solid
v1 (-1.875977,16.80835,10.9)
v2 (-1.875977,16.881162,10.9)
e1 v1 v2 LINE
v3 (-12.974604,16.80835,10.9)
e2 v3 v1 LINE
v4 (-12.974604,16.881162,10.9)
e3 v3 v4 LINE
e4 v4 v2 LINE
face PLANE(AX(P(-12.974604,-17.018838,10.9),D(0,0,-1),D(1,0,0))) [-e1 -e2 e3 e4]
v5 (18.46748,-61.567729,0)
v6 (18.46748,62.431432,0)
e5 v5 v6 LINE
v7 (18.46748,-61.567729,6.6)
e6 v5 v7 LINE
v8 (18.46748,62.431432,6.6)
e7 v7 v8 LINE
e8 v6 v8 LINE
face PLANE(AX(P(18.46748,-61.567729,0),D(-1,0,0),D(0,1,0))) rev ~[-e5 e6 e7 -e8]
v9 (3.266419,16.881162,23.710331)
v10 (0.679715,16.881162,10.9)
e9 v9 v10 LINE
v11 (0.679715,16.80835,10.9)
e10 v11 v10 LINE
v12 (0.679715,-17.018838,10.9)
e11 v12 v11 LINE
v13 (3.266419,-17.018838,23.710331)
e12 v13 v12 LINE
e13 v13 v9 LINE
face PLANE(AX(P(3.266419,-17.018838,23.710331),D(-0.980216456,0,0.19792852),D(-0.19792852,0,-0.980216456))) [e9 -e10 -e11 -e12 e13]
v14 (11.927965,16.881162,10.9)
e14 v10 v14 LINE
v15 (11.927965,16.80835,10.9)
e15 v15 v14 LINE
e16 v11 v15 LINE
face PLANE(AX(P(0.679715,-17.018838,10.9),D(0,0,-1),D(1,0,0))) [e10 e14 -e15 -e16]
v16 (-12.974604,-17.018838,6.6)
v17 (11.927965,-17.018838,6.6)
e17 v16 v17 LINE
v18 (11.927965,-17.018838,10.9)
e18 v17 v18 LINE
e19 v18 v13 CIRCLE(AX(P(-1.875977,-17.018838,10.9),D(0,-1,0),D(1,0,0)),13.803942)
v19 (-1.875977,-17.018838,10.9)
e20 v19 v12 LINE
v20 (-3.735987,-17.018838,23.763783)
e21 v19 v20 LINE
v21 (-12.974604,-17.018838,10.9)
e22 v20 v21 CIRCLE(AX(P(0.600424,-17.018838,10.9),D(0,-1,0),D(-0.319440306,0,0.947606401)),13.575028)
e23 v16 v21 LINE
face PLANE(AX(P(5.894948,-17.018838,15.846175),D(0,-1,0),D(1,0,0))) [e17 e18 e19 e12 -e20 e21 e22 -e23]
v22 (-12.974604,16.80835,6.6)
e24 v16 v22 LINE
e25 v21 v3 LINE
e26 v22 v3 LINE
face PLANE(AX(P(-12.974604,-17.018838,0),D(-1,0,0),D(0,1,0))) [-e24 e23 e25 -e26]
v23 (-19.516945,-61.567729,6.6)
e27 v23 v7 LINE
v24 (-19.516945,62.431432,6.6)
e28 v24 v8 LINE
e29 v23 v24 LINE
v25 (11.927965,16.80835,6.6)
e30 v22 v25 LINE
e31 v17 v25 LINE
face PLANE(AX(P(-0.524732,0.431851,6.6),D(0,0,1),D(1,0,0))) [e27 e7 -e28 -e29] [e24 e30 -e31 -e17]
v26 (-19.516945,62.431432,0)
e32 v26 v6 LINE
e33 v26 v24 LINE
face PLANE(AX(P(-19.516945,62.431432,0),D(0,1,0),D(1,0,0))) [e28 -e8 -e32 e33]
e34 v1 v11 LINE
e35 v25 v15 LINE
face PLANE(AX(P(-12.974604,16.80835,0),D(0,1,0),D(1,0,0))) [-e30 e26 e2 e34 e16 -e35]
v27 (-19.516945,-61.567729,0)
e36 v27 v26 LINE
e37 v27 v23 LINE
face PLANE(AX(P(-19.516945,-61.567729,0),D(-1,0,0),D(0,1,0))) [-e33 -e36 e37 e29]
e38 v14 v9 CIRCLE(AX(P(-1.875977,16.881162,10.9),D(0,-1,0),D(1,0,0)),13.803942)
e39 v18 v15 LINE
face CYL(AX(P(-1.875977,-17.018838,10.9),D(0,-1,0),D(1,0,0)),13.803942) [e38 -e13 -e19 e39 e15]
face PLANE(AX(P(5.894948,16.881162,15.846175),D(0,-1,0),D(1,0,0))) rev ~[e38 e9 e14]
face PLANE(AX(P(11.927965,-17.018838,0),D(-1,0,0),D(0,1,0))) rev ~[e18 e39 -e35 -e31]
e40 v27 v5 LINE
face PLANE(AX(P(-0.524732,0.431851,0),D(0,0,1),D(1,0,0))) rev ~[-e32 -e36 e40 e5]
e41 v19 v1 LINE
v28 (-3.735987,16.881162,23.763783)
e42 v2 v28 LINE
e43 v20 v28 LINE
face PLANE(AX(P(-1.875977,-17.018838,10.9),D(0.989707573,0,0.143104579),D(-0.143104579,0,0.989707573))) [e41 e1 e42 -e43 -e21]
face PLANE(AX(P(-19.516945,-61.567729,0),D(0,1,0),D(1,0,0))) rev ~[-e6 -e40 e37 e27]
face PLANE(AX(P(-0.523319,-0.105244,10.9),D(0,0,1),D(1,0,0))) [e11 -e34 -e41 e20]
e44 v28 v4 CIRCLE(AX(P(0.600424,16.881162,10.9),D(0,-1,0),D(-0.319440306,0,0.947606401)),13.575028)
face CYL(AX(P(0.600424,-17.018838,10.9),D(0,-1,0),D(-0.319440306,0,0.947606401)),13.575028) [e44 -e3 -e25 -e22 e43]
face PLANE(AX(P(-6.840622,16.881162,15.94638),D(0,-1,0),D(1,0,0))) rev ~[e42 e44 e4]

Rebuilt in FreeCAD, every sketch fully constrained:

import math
import FreeCAD as App
import Part
import Sketcher

V = App.Vector

doc = App.newDocument("Part")
body = doc.addObject("PartDesign::Body", "Body")

# Sketch on XY plane
sketch1 = doc.addObject("Sketcher::SketchObject", "Sketch")
body.addObject(sketch1)
sketch1.AttachmentSupport = (doc.XY_Plane, [""])
sketch1.MapMode = "FlatFace"
sketch1.addGeometry(Part.LineSegment(V(-20, 62, 0), V(-20, -62, 0)), False)
sketch1.addGeometry(Part.LineSegment(V(-20, -62, 0), V(18, -62, 0)), False)
sketch1.addGeometry(Part.LineSegment(V(18, -62, 0), V(18, 62, 0)), False)
sketch1.addGeometry(Part.LineSegment(V(18, 62, 0), V(-20, 62, 0)), False)
sketch1.addGeometry(Part.LineSegment(V(12, -17, 0), V(-13, -17, 0)), False)
sketch1.addGeometry(Part.LineSegment(V(-13, -17, 0), V(-13, 17, 0)), False)
sketch1.addGeometry(Part.LineSegment(V(-13, 17, 0), V(12, 17, 0)), False)
sketch1.addGeometry(Part.LineSegment(V(12, 17, 0), V(12, -17, 0)), False)
sketch1.addConstraint(Sketcher.Constraint("Coincident", 0, 2, 1, 1))
sketch1.addConstraint(Sketcher.Constraint("Coincident", 1, 2, 2, 1))
sketch1.addConstraint(Sketcher.Constraint("Coincident", 2, 2, 3, 1))
sketch1.addConstraint(Sketcher.Constraint("Coincident", 3, 2, 0, 1))
sketch1.addConstraint(Sketcher.Constraint("Coincident", 4, 2, 5, 1))
sketch1.addConstraint(Sketcher.Constraint("Coincident", 5, 2, 6, 1))
sketch1.addConstraint(Sketcher.Constraint("Coincident", 6, 2, 7, 1))
sketch1.addConstraint(Sketcher.Constraint("Coincident", 7, 2, 4, 1))
sketch1.addConstraint(Sketcher.Constraint("Vertical", 0))
sketch1.addConstraint(Sketcher.Constraint("Horizontal", 1))
sketch1.addConstraint(Sketcher.Constraint("Vertical", 2))
sketch1.addConstraint(Sketcher.Constraint("Horizontal", 3))
sketch1.addConstraint(Sketcher.Constraint("Horizontal", 4))
sketch1.addConstraint(Sketcher.Constraint("Vertical", 5))
sketch1.addConstraint(Sketcher.Constraint("Horizontal", 6))
sketch1.addConstraint(Sketcher.Constraint("Vertical", 7))
sketch1.addConstraint(Sketcher.Constraint("DistanceX", 4, 2, 4, 1, 24.902569))
sketch1.addConstraint(Sketcher.Constraint("DistanceY", 0, 2, 0, 1, 123.999162))
sketch1.addConstraint(Sketcher.Constraint("DistanceX", 1, 1, 1, 2, 37.984425))
sketch1.addConstraint(Sketcher.Constraint("DistanceY", 5, 1, 5, 2, 33.827187))
sketch1.addConstraint(Sketcher.Constraint("DistanceY", 0, 2, -1, 1, 61.567729))
sketch1.addConstraint(Sketcher.Constraint("DistanceX", -1, 1, 1, 2, 18.46748))
sketch1.addConstraint(Sketcher.Constraint("DistanceY", -1, 1, 5, 2, 16.80835))
sketch1.addConstraint(Sketcher.Constraint("DistanceX", 0, 2, 4, 2, 6.542341))
pad1 = doc.addObject("PartDesign::Pad", "Pad")
body.addObject(pad1)
pad1.Profile = sketch1
pad1.Length = 6.6

# Sketch on XY plane
sketch2 = doc.addObject("Sketcher::SketchObject", "Sketch001")
body.addObject(sketch2)
sketch2.AttachmentSupport = (doc.XY_Plane, [""])
sketch2.MapMode = "FlatFace"
sketch2.addGeometry(Part.LineSegment(V(-13, 17, 0), V(-13, -17, 0)), False)
sketch2.addGeometry(Part.LineSegment(V(-13, -17, 0), V(12, -17, 0)), False)
sketch2.addGeometry(Part.LineSegment(V(12, -17, 0), V(12, 17, 0)), False)
sketch2.addGeometry(Part.LineSegment(V(12, 17, 0), V(-13, 17, 0)), False)
sketch2.addConstraint(Sketcher.Constraint("Coincident", 0, 2, 1, 1))
sketch2.addConstraint(Sketcher.Constraint("Coincident", 1, 2, 2, 1))
sketch2.addConstraint(Sketcher.Constraint("Coincident", 2, 2, 3, 1))
sketch2.addConstraint(Sketcher.Constraint("Coincident", 3, 2, 0, 1))
sketch2.addConstraint(Sketcher.Constraint("Vertical", 0))
sketch2.addConstraint(Sketcher.Constraint("Horizontal", 1))
sketch2.addConstraint(Sketcher.Constraint("Vertical", 2))
sketch2.addConstraint(Sketcher.Constraint("Horizontal", 3))
sketch2.addConstraint(Sketcher.Constraint("DistanceX", 1, 1, 1, 2, 24.902569))
sketch2.addConstraint(Sketcher.Constraint("DistanceY", 0, 2, 0, 1, 33.827187))
sketch2.addConstraint(Sketcher.Constraint("DistanceY", -1, 1, 2, 2, 16.80835))
sketch2.addConstraint(Sketcher.Constraint("DistanceX", 0, 2, -1, 1, 12.974604))
pad2 = doc.addObject("PartDesign::Pad", "Pad001")
body.addObject(pad2)
pad2.Profile = sketch2
pad2.Length = 10.9

# Sketch on XZ plane
sketch3 = doc.addObject("Sketcher::SketchObject", "Sketch002")
body.addObject(sketch3)
sketch3.AttachmentSupport = (doc.XZ_Plane, [""])
sketch3.MapMode = "FlatFace"
sketch3.AttachmentOffset = App.Placement(V(0, 0, 17.018838), App.Rotation())
sketch3.addGeometry(Part.LineSegment(V(3, 24, 0), V(1, 11, 0)), False)
sketch3.addGeometry(Part.LineSegment(V(1, 11, 0), V(12, 11, 0)), False)
sketch3.addGeometry(Part.ArcOfCircle(Part.Circle(V(-2, 11, 0), V(0, 0, 1), 14), math.radians(0), math.radians(68)), False)
sketch3.addGeometry(Part.LineSegment(V(-2, 11, 0), V(-4, 24, 0)), False)
sketch3.addGeometry(Part.ArcOfCircle(Part.Circle(V(1, 11, 0), V(0, 0, 1), 14), math.radians(109), math.radians(180)), False)
sketch3.addGeometry(Part.LineSegment(V(-13, 11, 0), V(-2, 11, 0)), False)
sketch3.addConstraint(Sketcher.Constraint("Coincident", 0, 2, 1, 1))
sketch3.addConstraint(Sketcher.Constraint("Coincident", 1, 2, 2, 1))
sketch3.addConstraint(Sketcher.Constraint("Coincident", 2, 2, 0, 1))
sketch3.addConstraint(Sketcher.Constraint("Coincident", 3, 2, 4, 1))
sketch3.addConstraint(Sketcher.Constraint("Coincident", 4, 2, 5, 1))
sketch3.addConstraint(Sketcher.Constraint("Coincident", 5, 2, 3, 1))
sketch3.addConstraint(Sketcher.Constraint("Horizontal", 1))
sketch3.addConstraint(Sketcher.Constraint("Horizontal", 5))
sketch3.addConstraint(Sketcher.Constraint("Coincident", 5, 2, 2, 3))
sketch3.addConstraint(Sketcher.Constraint("Horizontal", 2, 3, 4, 3))
sketch3.addConstraint(Sketcher.Constraint("Horizontal", 4, 3, 0, 2))
sketch3.addConstraint(Sketcher.Constraint("DistanceY", -1, 1, 2, 3, 10.9))
sketch3.addConstraint(Sketcher.Constraint("Radius", 2, 13.803942))
sketch3.addConstraint(Sketcher.Constraint("Radius", 4, 13.575028))
sketch3.addConstraint(Sketcher.Constraint("DistanceX", 1, 1, 1, 2, 11.24825))
sketch3.addConstraint(Sketcher.Constraint("DistanceX", 2, 3, 4, 3, 2.476401))
sketch3.addConstraint(Sketcher.Constraint("Distance", 0, 13.06888))
sketch3.addConstraint(Sketcher.Constraint("Distance", 3, 12.99756))
sketch3.addConstraint(Sketcher.Constraint("DistanceX", -1, 1, 2, 2, 3.266419))
pad3 = doc.addObject("PartDesign::Pad", "Pad002")
body.addObject(pad3)
pad3.Profile = sketch3
pad3.Length = 33.9
pad3.Reversed = True

doc.recompute()
